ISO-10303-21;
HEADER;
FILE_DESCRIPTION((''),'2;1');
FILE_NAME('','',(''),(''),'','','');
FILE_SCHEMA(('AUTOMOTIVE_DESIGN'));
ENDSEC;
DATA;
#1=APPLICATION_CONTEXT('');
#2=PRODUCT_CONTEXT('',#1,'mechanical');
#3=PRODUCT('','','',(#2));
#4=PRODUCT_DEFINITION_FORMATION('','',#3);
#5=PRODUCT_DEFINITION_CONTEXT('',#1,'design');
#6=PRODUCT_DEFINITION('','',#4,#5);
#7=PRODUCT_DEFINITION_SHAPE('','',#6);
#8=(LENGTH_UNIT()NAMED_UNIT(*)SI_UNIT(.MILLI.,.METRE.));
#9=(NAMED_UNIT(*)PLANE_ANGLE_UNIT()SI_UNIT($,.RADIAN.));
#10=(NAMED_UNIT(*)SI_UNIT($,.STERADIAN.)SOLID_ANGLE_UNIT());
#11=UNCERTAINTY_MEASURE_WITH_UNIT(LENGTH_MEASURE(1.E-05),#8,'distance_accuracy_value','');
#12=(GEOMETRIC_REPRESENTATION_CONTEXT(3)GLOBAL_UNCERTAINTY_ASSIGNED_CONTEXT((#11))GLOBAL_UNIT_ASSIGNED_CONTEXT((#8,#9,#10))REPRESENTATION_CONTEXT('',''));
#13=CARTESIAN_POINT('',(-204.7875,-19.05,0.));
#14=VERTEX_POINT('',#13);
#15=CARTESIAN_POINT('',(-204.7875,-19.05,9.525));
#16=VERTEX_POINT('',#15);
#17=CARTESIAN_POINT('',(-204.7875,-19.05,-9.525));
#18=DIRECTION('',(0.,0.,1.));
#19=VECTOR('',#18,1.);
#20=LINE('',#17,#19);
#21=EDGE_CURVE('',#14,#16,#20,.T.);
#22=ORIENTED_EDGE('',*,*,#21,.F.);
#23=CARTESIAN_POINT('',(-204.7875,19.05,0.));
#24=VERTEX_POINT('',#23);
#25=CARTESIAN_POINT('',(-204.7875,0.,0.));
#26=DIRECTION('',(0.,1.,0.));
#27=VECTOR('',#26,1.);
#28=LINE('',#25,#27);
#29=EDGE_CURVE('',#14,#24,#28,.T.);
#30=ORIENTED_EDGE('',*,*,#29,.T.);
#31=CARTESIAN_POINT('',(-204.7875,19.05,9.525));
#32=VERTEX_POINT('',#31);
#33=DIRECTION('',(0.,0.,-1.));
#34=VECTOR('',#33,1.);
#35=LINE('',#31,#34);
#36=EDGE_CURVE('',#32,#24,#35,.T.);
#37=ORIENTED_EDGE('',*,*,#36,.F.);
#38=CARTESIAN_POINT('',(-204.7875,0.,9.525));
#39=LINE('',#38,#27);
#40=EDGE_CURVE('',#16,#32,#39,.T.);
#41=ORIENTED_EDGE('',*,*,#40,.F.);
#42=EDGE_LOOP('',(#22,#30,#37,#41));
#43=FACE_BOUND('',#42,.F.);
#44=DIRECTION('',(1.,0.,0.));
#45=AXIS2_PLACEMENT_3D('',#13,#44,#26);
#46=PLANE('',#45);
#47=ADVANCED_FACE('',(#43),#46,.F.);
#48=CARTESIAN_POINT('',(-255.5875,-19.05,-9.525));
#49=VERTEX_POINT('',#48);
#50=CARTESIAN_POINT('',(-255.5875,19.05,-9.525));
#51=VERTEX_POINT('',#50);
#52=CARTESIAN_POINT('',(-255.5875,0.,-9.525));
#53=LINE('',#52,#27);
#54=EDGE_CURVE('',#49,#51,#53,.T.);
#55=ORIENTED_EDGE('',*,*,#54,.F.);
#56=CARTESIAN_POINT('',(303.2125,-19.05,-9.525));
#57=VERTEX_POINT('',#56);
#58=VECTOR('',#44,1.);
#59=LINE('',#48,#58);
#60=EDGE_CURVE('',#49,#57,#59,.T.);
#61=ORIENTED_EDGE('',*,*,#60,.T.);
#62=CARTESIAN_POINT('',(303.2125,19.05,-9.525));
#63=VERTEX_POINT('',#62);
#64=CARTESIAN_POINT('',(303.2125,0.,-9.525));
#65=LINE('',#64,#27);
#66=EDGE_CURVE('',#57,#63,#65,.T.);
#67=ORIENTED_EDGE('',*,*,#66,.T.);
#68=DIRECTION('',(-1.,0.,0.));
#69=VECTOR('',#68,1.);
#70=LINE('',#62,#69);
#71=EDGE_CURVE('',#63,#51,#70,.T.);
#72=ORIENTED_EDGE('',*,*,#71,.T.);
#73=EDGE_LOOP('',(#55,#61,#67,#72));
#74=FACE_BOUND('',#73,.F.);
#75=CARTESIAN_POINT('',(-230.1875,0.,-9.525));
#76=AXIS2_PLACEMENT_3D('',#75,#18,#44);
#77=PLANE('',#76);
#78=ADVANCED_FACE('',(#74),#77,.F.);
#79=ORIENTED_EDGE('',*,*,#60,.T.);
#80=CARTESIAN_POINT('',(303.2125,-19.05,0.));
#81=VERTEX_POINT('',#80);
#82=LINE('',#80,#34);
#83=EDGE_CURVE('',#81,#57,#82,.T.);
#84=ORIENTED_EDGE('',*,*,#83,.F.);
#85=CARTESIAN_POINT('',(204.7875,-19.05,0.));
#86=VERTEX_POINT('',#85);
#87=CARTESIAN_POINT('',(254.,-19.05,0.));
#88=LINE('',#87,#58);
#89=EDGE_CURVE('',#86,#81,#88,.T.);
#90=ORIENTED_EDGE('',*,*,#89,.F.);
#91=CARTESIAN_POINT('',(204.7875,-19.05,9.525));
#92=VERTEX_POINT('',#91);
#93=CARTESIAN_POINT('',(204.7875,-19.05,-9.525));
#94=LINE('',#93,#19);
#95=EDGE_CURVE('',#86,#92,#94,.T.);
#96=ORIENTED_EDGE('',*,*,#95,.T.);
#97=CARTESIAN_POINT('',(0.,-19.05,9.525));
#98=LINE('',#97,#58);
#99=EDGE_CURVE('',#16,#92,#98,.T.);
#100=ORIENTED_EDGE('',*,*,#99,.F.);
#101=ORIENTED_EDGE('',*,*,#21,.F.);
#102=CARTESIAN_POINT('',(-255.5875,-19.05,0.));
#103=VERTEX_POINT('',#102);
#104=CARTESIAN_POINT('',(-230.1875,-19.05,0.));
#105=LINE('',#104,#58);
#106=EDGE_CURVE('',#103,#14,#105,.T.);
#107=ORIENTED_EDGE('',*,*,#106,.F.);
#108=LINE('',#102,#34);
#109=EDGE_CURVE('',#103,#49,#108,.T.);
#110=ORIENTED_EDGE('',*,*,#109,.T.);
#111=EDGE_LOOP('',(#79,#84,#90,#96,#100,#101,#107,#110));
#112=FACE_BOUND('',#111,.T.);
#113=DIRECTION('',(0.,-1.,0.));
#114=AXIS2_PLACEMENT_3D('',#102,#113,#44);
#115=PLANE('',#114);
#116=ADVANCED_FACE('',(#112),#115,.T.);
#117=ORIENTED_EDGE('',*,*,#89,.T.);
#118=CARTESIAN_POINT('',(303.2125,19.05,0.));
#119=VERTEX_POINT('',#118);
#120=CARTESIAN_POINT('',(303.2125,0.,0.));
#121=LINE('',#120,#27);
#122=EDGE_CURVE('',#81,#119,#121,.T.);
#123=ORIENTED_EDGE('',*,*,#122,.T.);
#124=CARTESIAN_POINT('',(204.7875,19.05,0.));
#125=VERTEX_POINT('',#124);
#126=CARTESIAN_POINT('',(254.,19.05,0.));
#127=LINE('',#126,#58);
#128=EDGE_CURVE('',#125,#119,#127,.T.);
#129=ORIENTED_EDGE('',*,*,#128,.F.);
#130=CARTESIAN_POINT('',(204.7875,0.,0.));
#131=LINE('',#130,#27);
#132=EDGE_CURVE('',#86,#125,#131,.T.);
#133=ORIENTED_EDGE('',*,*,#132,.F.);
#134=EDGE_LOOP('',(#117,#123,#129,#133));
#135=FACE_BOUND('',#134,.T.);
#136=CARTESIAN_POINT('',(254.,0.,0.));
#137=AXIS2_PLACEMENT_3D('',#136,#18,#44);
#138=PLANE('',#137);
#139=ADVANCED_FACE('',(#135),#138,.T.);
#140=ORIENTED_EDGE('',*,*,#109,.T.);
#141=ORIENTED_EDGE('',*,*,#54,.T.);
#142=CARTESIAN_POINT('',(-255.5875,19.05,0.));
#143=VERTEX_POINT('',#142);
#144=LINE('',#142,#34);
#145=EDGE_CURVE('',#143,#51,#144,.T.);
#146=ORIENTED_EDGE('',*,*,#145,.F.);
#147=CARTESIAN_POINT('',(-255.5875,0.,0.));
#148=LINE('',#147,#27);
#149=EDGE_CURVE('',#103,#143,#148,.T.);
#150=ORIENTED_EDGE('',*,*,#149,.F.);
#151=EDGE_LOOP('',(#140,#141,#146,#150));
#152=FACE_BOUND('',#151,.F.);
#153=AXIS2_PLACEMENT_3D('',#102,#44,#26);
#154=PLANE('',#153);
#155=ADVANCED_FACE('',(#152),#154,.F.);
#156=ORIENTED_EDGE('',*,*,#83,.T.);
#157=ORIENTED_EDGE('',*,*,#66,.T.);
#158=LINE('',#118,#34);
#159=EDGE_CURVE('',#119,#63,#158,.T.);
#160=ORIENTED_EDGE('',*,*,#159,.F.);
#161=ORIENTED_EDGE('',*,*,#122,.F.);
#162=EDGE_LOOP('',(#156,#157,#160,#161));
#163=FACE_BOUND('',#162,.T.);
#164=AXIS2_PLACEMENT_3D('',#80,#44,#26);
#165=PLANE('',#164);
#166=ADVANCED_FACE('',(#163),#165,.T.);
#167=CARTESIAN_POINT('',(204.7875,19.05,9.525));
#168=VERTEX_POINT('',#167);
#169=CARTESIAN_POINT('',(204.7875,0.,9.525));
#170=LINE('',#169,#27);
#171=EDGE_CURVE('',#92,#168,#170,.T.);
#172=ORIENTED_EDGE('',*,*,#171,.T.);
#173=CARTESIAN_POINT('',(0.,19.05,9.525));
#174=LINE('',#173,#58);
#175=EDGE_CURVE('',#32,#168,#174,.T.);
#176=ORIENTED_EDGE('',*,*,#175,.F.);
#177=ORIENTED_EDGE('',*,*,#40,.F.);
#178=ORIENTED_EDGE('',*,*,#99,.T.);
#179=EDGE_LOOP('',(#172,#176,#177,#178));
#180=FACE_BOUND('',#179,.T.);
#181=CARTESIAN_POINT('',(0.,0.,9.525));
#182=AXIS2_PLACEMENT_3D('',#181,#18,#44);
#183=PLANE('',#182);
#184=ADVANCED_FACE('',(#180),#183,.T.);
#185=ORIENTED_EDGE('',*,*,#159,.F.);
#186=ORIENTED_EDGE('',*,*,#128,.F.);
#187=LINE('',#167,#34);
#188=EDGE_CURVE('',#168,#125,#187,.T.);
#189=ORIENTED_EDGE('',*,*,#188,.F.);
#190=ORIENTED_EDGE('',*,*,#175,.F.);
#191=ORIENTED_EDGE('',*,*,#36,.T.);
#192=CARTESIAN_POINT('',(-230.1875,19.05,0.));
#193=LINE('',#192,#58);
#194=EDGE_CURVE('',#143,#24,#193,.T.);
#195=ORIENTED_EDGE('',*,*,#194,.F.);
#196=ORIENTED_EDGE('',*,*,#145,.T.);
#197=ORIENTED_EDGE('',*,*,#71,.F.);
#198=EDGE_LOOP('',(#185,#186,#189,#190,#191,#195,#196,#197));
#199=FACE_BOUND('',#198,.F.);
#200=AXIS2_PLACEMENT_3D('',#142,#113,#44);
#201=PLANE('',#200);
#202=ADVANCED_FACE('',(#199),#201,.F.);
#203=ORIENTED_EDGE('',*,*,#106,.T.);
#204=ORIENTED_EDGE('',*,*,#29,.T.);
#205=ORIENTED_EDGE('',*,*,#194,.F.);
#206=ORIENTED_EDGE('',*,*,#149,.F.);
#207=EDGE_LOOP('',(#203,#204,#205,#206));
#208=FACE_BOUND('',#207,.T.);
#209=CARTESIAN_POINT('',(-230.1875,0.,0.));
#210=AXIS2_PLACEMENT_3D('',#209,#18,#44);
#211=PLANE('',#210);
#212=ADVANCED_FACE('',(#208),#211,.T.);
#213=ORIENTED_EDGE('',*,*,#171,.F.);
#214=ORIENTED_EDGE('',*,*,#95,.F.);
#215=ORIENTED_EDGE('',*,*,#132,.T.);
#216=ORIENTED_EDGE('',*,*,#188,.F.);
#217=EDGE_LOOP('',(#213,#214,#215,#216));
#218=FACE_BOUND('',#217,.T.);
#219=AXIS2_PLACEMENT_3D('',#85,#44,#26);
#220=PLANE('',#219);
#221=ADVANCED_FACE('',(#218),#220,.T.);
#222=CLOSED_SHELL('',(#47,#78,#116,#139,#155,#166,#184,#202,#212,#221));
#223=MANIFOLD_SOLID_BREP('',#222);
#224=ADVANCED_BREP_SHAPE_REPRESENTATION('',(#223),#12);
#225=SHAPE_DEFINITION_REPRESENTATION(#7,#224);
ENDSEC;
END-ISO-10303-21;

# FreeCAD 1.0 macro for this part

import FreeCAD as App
import Part
import Sketcher
Q = App.Units.Quantity

doc = App.newDocument("Part")
body = doc.addObject("PartDesign::Body", "Body")

sketch1 = doc.addObject("Sketcher::SketchObject", "Sketch")
body.addObject(sketch1)
sketch1.AttachmentSupport = (doc.XY_Plane, [""])
sketch1.MapMode = "FlatFace"
sketch1.addGeometry(Part.LineSegment(App.Vector(-205, 19, 0), App.Vector(-205, -19, 0)), False)
sketch1.addGeometry(Part.LineSegment(App.Vector(-205, -19, 0), App.Vector(205, -19, 0)), False)
sketch1.addGeometry(Part.LineSegment(App.Vector(205, -19, 0), App.Vector(205, 19, 0)), False)
sketch1.addGeometry(Part.LineSegment(App.Vector(205, 19, 0), App.Vector(-205, 19, 0)), False)
sketch1.addConstraint(Sketcher.Constraint("Coincident", 0, 2, 1, 1))
sketch1.addConstraint(Sketcher.Constraint("Coincident", 1, 2, 2, 1))
sketch1.addConstraint(Sketcher.Constraint("Coincident", 2, 2, 3, 1))
sketch1.addConstraint(Sketcher.Constraint("Coincident", 3, 2, 0, 1))
sketch1.addConstraint(Sketcher.Constraint("Vertical", 0))
sketch1.addConstraint(Sketcher.Constraint("Horizontal", 1))
sketch1.addConstraint(Sketcher.Constraint("Vertical", 2))
sketch1.addConstraint(Sketcher.Constraint("Horizontal", 3))
sketch1.addConstraint(Sketcher.Constraint("Symmetric", 0, 2, 2, 2, -1, 1))
sketch1.addConstraint(Sketcher.Constraint("DistanceY", 0, 2, 0, 1, Q("1.5 in")))
sketch1.addConstraint(Sketcher.Constraint("DistanceX", 1, 1, 1, 2, Q("16.125 in")))
pad1 = doc.addObject("PartDesign::Pad", "Pad")
body.addObject(pad1)
pad1.Profile = sketch1
pad1.Length = Q("0.75 in")
pad1.Midplane = True

sketch2 = doc.addObject("Sketcher::SketchObject", "Sketch001")
body.addObject(sketch2)
sketch2.AttachmentSupport = (doc.XY_Plane, [""])
sketch2.MapMode = "FlatFace"
sketch2.addGeometry(Part.LineSegment(App.Vector(-256, 19, 0), App.Vector(-256, -19, 0)), False)
sketch2.addGeometry(Part.LineSegment(App.Vector(-256, -19, 0), App.Vector(-205, -19, 0)), False)
sketch2.addGeometry(Part.LineSegment(App.Vector(-205, -19, 0), App.Vector(-205, 19, 0)), False)
sketch2.addGeometry(Part.LineSegment(App.Vector(-205, 19, 0), App.Vector(-256, 19, 0)), False)
sketch2.addGeometry(Part.LineSegment(App.Vector(205, 19, 0), App.Vector(205, -19, 0)), False)
sketch2.addGeometry(Part.LineSegment(App.Vector(205, -19, 0), App.Vector(303, -19, 0)), False)
sketch2.addGeometry(Part.LineSegment(App.Vector(303, -19, 0), App.Vector(303, 19, 0)), False)
sketch2.addGeometry(Part.LineSegment(App.Vector(303, 19, 0), App.Vector(205, 19, 0)), False)
sketch2.addConstraint(Sketcher.Constraint("Coincident", 0, 2, 1, 1))
sketch2.addConstraint(Sketcher.Constraint("Coincident", 1, 2, 2, 1))
sketch2.addConstraint(Sketcher.Constraint("Coincident", 2, 2, 3, 1))
sketch2.addConstraint(Sketcher.Constraint("Coincident", 3, 2, 0, 1))
sketch2.addConstraint(Sketcher.Constraint("Coincident", 4, 2, 5, 1))
sketch2.addConstraint(Sketcher.Constraint("Coincident", 5, 2, 6, 1))
sketch2.addConstraint(Sketcher.Constraint("Coincident", 6, 2, 7, 1))
sketch2.addConstraint(Sketcher.Constraint("Coincident", 7, 2, 4, 1))
sketch2.addConstraint(Sketcher.Constraint("Vertical", 0))
sketch2.addConstraint(Sketcher.Constraint("Horizontal", 1))
sketch2.addConstraint(Sketcher.Constraint("Vertical", 2))
sketch2.addConstraint(Sketcher.Constraint("Horizontal", 3))
sketch2.addConstraint(Sketcher.Constraint("Vertical", 4))
sketch2.addConstraint(Sketcher.Constraint("Horizontal", 5))
sketch2.addConstraint(Sketcher.Constraint("Vertical", 6))
sketch2.addConstraint(Sketcher.Constraint("Horizontal", 7))
sketch2.addConstraint(Sketcher.Constraint("Symmetric", 2, 2, 4, 2, -1, 1))
sketch2.addConstraint(Sketcher.Constraint("Horizontal", 1, 2, 4, 2))
sketch2.addConstraint(Sketcher.Constraint("Horizontal", 3, 2, 6, 2))
sketch2.addConstraint(Sketcher.Constraint("DistanceX", 1, 1, 1, 2, Q("2 in")))
sketch2.addConstraint(Sketcher.Constraint("DistanceY", 0, 2, 0, 1, Q("1.5 in")))
sketch2.addConstraint(Sketcher.Constraint("DistanceX", 1, 2, 5, 2, Q("20 in")))
sketch2.addConstraint(Sketcher.Constraint("DistanceX", 5, 1, 5, 2, Q("3.875 in")))
pad2 = doc.addObject("PartDesign::Pad", "Pad001")
body.addObject(pad2)
pad2.Profile = sketch2
pad2.Type = "UpToLast"
pad2.Reversed = True

doc.recompute()
